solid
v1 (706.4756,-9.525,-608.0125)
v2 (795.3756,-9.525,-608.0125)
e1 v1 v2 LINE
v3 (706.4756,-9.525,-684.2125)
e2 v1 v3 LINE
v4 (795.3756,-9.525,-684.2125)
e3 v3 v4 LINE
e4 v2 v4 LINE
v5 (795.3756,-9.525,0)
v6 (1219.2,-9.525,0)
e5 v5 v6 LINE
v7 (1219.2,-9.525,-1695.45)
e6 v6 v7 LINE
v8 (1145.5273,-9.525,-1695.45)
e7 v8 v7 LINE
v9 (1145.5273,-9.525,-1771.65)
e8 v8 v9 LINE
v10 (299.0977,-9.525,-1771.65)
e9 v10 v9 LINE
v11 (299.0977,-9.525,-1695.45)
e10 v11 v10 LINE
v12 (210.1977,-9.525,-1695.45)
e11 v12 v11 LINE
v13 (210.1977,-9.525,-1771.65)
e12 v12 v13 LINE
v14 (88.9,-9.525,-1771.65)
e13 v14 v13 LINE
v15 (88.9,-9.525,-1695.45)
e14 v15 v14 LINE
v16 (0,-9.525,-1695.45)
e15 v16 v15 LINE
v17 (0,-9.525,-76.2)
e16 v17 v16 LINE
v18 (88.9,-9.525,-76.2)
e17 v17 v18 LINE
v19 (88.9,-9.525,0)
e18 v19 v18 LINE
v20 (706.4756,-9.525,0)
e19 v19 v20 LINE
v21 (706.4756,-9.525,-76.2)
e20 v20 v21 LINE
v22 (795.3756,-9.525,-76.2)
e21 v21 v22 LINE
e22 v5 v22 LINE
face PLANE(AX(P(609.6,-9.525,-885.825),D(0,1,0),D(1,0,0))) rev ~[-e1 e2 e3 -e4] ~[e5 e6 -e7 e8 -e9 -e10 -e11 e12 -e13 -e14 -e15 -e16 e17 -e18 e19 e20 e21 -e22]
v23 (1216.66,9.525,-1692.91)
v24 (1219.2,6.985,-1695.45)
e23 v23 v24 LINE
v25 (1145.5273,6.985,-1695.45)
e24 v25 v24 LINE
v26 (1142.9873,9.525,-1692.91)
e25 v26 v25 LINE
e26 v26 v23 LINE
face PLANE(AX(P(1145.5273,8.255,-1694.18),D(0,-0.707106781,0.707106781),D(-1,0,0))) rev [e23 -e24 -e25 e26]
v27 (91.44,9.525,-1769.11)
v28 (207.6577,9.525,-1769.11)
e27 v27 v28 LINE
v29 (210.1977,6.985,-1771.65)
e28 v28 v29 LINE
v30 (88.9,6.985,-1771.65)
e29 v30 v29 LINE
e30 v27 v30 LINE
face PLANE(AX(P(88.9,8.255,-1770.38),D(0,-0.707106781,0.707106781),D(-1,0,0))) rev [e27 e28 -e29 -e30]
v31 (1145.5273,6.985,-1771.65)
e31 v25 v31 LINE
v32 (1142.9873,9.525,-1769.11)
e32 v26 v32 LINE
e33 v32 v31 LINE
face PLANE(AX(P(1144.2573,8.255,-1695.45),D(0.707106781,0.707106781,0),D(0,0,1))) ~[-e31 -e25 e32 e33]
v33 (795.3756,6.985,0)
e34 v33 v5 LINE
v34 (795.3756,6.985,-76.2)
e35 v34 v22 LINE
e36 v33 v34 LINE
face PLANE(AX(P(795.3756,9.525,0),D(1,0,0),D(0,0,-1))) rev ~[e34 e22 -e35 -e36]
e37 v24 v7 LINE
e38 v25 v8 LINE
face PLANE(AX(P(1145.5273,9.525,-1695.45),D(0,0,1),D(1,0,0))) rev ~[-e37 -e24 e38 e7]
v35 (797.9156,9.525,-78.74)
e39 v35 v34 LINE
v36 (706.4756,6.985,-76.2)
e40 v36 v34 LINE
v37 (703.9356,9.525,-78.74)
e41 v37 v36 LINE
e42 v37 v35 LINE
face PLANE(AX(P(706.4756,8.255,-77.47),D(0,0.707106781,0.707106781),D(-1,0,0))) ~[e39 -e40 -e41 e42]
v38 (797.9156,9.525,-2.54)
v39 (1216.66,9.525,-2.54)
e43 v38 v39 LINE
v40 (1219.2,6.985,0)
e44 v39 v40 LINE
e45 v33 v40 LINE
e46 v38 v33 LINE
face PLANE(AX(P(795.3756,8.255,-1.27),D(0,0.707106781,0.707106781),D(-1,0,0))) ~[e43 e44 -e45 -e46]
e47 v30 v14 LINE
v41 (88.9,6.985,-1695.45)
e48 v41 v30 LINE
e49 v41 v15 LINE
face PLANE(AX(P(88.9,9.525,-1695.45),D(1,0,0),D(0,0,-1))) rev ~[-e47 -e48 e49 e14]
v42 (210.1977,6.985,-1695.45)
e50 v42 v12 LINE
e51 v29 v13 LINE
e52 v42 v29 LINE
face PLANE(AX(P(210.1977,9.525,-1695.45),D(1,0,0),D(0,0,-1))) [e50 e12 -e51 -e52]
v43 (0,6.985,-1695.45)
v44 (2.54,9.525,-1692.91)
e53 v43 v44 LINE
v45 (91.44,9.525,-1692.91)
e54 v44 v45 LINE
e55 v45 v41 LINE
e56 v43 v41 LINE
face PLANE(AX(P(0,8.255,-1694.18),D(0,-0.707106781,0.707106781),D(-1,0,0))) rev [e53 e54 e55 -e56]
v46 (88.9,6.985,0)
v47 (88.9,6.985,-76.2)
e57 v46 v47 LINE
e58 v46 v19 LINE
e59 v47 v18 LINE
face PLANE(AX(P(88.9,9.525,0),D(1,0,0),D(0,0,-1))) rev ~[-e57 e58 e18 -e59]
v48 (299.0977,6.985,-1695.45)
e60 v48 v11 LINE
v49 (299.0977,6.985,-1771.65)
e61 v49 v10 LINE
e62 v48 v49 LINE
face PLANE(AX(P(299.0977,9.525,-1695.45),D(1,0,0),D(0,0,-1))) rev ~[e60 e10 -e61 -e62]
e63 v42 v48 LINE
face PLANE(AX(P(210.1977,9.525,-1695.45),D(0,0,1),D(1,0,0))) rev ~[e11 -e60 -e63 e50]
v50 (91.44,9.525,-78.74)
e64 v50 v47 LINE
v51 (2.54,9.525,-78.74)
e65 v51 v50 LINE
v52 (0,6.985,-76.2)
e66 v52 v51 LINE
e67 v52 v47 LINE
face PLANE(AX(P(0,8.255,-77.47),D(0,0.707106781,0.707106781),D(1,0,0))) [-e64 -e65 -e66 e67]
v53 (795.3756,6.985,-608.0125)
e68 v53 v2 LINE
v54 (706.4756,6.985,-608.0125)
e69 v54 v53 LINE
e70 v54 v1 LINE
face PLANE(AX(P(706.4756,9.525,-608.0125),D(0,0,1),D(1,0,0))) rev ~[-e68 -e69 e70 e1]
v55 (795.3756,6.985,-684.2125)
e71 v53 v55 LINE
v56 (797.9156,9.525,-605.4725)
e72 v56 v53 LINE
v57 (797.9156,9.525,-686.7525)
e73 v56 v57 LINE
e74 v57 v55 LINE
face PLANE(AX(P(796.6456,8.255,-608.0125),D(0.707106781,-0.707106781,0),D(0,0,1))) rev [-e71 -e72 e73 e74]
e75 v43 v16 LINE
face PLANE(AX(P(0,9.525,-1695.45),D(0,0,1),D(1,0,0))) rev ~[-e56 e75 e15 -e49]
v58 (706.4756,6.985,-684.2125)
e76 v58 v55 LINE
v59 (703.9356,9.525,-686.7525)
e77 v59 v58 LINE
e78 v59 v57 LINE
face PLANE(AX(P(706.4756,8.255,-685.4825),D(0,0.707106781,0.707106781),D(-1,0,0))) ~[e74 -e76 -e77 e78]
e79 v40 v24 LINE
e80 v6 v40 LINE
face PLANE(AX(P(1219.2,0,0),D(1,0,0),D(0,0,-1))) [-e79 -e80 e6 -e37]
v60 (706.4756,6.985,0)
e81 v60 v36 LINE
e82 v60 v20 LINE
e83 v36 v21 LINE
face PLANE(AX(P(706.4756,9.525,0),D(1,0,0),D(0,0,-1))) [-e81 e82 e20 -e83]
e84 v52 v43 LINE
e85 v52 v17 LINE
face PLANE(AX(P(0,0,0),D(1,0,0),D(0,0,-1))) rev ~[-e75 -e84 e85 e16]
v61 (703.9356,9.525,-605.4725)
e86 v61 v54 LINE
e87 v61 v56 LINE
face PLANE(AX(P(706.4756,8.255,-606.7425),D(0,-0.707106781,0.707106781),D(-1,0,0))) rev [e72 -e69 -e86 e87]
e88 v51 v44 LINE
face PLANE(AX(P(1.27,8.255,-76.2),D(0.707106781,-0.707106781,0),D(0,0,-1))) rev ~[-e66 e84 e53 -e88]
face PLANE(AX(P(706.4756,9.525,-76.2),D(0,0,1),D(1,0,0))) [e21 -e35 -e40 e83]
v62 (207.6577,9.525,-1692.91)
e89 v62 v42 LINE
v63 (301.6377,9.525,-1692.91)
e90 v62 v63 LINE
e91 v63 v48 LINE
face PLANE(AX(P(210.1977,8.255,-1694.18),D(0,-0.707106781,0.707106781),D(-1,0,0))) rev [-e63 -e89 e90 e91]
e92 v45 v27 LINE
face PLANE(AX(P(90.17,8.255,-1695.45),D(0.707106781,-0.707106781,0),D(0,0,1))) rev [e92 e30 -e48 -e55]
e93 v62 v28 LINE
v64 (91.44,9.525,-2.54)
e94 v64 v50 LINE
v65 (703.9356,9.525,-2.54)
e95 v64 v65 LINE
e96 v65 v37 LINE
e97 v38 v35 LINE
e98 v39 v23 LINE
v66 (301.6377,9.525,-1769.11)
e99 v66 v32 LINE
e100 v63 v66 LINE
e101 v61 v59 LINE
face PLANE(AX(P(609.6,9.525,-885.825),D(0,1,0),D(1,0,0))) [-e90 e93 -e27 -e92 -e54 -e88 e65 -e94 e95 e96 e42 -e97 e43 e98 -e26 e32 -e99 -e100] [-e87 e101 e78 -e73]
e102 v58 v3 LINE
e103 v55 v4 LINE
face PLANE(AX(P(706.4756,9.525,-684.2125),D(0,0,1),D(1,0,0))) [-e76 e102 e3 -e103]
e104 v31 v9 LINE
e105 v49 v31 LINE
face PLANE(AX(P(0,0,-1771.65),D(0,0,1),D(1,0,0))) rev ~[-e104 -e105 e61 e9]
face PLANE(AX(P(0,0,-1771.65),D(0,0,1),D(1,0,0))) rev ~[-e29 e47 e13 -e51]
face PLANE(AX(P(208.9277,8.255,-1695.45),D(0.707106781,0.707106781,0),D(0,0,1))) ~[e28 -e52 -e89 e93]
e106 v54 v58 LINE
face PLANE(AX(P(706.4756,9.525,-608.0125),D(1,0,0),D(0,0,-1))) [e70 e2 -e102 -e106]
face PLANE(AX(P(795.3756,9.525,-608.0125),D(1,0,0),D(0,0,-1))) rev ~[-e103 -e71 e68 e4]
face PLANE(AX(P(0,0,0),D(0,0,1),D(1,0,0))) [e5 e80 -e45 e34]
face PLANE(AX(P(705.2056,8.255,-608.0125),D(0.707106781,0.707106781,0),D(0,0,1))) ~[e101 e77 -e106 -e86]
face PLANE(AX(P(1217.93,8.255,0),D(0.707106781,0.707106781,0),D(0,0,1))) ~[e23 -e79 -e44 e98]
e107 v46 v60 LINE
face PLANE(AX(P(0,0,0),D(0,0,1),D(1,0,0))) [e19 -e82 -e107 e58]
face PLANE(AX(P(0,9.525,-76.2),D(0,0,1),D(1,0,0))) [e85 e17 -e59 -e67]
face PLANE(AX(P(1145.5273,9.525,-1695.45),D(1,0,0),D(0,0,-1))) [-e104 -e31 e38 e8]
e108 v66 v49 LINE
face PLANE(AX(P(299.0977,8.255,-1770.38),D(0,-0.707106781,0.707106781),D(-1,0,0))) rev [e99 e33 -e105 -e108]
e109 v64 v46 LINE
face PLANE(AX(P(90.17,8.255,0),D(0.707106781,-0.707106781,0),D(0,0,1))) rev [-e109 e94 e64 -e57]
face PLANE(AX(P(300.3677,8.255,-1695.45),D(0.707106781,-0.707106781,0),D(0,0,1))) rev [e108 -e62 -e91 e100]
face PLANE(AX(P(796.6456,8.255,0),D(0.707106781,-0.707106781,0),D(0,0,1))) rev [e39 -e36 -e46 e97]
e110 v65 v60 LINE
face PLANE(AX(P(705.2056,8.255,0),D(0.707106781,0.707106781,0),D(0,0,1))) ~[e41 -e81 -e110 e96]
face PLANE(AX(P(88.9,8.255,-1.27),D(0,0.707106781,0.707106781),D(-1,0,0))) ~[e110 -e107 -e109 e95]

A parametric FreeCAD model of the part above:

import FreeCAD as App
import Part
import Sketcher
from FreeCAD import Vector
Q = App.Units.Quantity


def edges_at(feature, points):
    """Names of the edges that pass closest to the given points."""
    edges = feature.Shape.Edges
    near = lambda p: min(range(len(edges)), key=lambda i: edges[i].distToShape(Part.Vertex(*p))[0])
    return sorted({f"Edge{near(p) + 1}" for p in points})


def add_polygon(sketch, points):
    """Adds a closed chain of lines whose ends are joined by coincident constraints."""
    first, n = sketch.GeometryCount, len(points)
    for a, b in zip(points, points[1:] + points[:1]):
        sketch.addGeometry(Part.LineSegment(App.Vector(*a, 0), App.Vector(*b, 0)), False)
    for i in range(n):
        sketch.addConstraint(Sketcher.Constraint("Coincident", first + i, 2, first + (i + 1) % n, 1))

doc = App.newDocument("Part")
body = doc.addObject("PartDesign::Body", "Body")

# Sketch on XZ plane
sketch1 = body.newObject("Sketcher::SketchObject", "Sketch")
sketch1.AttachmentSupport = (doc.getObject("XZ_Plane"), [""])
sketch1.MapMode = "FlatFace"
add_polygon(sketch1, [(0, -1772), (0, 0), (1219, 0), (1219, -1772)])  # lines 0-3
sketch1.addConstraint(Sketcher.Constraint("Vertical", 0))
sketch1.addConstraint(Sketcher.Constraint("Horizontal", 1))
sketch1.addConstraint(Sketcher.Constraint("Vertical", 2))
sketch1.addConstraint(Sketcher.Constraint("Horizontal", 3))
sketch1.addConstraint(Sketcher.Constraint("Coincident", 0, 2, -1, 1))
sketch1.addConstraint(Sketcher.Constraint("DistanceX", 1, 1, 1, 2, Q("48 in")))
sketch1.addConstraint(Sketcher.Constraint("DistanceY", 0, 1, 0, 2, Q("69.75 in")))
pad1 = body.newObject("PartDesign::Pad", "Pad")
pad1.Profile = sketch1
pad1.Length = Q("0.75 in")
pad1.Midplane = True

# Sketch on XZ plane
sketch2 = body.newObject("Sketcher::SketchObject", "Sketch001")
sketch2.AttachmentSupport = (doc.getObject("XZ_Plane"), [""])
sketch2.MapMode = "FlatFace"
sketch2.AttachmentOffset = App.Placement(Vector(0, 0, -0.375 * 25.4), App.Rotation())
add_polygon(sketch2, [(0, -1772), (0, -1695), (89, -1695), (89, -1772)])  # lines 0-3
add_polygon(sketch2, [(210, -1772), (210, -1695), (299, -1695), (299, -1772)])  # lines 4-7
add_polygon(sketch2, [(706, -684), (706, -608), (795, -608), (795, -684)])  # lines 8-11
add_polygon(sketch2, [(0, -76), (0, 0), (89, 0), (89, -76)])  # lines 12-15
add_polygon(sketch2, [(706, -76), (706, 0), (795, 0), (795, -76)])  # lines 16-19
add_polygon(sketch2, [(1146, -1772), (1146, -1695), (1219, -1695), (1219, -1772)])  # lines 20-23
sketch2.addConstraint(Sketcher.Constraint("Vertical", 0))
sketch2.addConstraint(Sketcher.Constraint("Horizontal", 1))
sketch2.addConstraint(Sketcher.Constraint("Vertical", 2))
sketch2.addConstraint(Sketcher.Constraint("Horizontal", 3))
sketch2.addConstraint(Sketcher.Constraint("Vertical", 4))
sketch2.addConstraint(Sketcher.Constraint("Horizontal", 5))
sketch2.addConstraint(Sketcher.Constraint("Vertical", 6))
sketch2.addConstraint(Sketcher.Constraint("Horizontal", 7))
sketch2.addConstraint(Sketcher.Constraint("Vertical", 8))
sketch2.addConstraint(Sketcher.Constraint("Horizontal", 9))
sketch2.addConstraint(Sketcher.Constraint("Vertical", 10))
sketch2.addConstraint(Sketcher.Constraint("Horizontal", 11))
sketch2.addConstraint(Sketcher.Constraint("Vertical", 12))
sketch2.addConstraint(Sketcher.Constraint("Horizontal", 13))
sketch2.addConstraint(Sketcher.Constraint("Vertical", 14))
sketch2.addConstraint(Sketcher.Constraint("Horizontal", 15))
sketch2.addConstraint(Sketcher.Constraint("Vertical", 16))
sketch2.addConstraint(Sketcher.Constraint("Horizontal", 17))
sketch2.addConstraint(Sketcher.Constraint("Vertical", 18))
sketch2.addConstraint(Sketcher.Constraint("Horizontal", 19))
sketch2.addConstraint(Sketcher.Constraint("Vertical", 20))
sketch2.addConstraint(Sketcher.Constraint("Horizontal", 21))
sketch2.addConstraint(Sketcher.Constraint("Vertical", 22))
sketch2.addConstraint(Sketcher.Constraint("Horizontal", 23))
sketch2.addConstraint(Sketcher.Constraint("Coincident", 12, 2, -1, 1))
sketch2.addConstraint(Sketcher.Constraint("PointOnObject", 0, 2, -2))
sketch2.addConstraint(Sketcher.Constraint("PointOnObject", 16, 2, -1))
sketch2.addConstraint(Sketcher.Constraint("Horizontal", 1, 2, 4, 2))
sketch2.addConstraint(Sketcher.Constraint("Horizontal", 3, 2, 6, 2))
sketch2.addConstraint(Sketcher.Constraint("Horizontal", 15, 2, 18, 2))
sketch2.addConstraint(Sketcher.Constraint("Horizontal", 5, 2, 20, 2))
sketch2.addConstraint(Sketcher.Constraint("Horizontal", 7, 2, 22, 2))
sketch2.addConstraint(Sketcher.Constraint("Vertical", 2, 2, 13, 2))
sketch2.addConstraint(Sketcher.Constraint("Vertical", 11, 2, 16, 2))
sketch2.addConstraint(Sketcher.Constraint("Vertical", 10, 2, 17, 2))
sketch2.addConstraint(Sketcher.Constraint("Equal", 3, 5))
sketch2.addConstraint(Sketcher.Constraint("Equal", 7, 9))
sketch2.addConstraint(Sketcher.Constraint("Equal", 6, 8))
sketch2.addConstraint(Sketcher.Constraint("Equal", 10, 12))
sketch2.addConstraint(Sketcher.Constraint("DistanceY", 0, 1, 0, 2, Q("3 in")))
sketch2.addConstraint(Sketcher.Constraint("DistanceX", 1, 1, 1, 2, Q("3.5 in")))
sketch2.addConstraint(Sketcher.Constraint("DistanceX", -1, 1, 21, 2, Q("48 in")))
sketch2.addConstraint(Sketcher.Constraint("DistanceY", 0, 2, -1, 1, Q("66.75 in")))
sketch2.addConstraint(Sketcher.Constraint("DistanceX", 21, 1, 21, 2, Q("2.9005 in")))
sketch2.addConstraint(Sketcher.Constraint("DistanceX", -1, 1, 8, 2, Q("27.814 in")))
sketch2.addConstraint(Sketcher.Constraint("DistanceY", 8, 2, -1, 1, Q("23.9375 in")))
sketch2.addConstraint(Sketcher.Constraint("DistanceX", 5, 2, 20, 2, Q("33.324 in")))
pocket1 = body.newObject("PartDesign::Pocket", "Pocket")
pocket1.Profile = sketch2
pocket1.Type = "ThroughAll"
pocket1.Reversed = True
doc.recompute()

chamfer = body.newObject("PartDesign::Chamfer", "Chamfer")
chamfer.Base = (pocket1, edges_at(pocket1, [
    (1219.2, 9.525, -847.725),
    (0, 9.525, -885.825),
    (397.688, 9.525, 0),
    (1007.288, 9.525, 0),
    (722.312, 9.525, -1771.65),
    (149.549, 9.525, -1771.65),
    (1145.527, 9.525, -1733.55),
    (1182.364, 9.525, -1695.45),
    (795.376, 9.525, -38.1),
    (750.926, 9.525, -76.2),
    (706.476, 9.525, -38.1),
    (88.9, 9.525, -38.1),
    (44.45, 9.525, -76.2),
    (706.476, 9.525, -646.112),
    (750.926, 9.525, -608.012),
    (795.376, 9.525, -646.112),
    (750.926, 9.525, -684.212),
    (210.198, 9.525, -1733.55),
    (254.648, 9.525, -1695.45),
    (299.098, 9.525, -1733.55),
    (44.45, 9.525, -1695.45),
    (88.9, 9.525, -1733.55),
]))
chamfer.Size = Q("0.1 in")

doc.recompute()
